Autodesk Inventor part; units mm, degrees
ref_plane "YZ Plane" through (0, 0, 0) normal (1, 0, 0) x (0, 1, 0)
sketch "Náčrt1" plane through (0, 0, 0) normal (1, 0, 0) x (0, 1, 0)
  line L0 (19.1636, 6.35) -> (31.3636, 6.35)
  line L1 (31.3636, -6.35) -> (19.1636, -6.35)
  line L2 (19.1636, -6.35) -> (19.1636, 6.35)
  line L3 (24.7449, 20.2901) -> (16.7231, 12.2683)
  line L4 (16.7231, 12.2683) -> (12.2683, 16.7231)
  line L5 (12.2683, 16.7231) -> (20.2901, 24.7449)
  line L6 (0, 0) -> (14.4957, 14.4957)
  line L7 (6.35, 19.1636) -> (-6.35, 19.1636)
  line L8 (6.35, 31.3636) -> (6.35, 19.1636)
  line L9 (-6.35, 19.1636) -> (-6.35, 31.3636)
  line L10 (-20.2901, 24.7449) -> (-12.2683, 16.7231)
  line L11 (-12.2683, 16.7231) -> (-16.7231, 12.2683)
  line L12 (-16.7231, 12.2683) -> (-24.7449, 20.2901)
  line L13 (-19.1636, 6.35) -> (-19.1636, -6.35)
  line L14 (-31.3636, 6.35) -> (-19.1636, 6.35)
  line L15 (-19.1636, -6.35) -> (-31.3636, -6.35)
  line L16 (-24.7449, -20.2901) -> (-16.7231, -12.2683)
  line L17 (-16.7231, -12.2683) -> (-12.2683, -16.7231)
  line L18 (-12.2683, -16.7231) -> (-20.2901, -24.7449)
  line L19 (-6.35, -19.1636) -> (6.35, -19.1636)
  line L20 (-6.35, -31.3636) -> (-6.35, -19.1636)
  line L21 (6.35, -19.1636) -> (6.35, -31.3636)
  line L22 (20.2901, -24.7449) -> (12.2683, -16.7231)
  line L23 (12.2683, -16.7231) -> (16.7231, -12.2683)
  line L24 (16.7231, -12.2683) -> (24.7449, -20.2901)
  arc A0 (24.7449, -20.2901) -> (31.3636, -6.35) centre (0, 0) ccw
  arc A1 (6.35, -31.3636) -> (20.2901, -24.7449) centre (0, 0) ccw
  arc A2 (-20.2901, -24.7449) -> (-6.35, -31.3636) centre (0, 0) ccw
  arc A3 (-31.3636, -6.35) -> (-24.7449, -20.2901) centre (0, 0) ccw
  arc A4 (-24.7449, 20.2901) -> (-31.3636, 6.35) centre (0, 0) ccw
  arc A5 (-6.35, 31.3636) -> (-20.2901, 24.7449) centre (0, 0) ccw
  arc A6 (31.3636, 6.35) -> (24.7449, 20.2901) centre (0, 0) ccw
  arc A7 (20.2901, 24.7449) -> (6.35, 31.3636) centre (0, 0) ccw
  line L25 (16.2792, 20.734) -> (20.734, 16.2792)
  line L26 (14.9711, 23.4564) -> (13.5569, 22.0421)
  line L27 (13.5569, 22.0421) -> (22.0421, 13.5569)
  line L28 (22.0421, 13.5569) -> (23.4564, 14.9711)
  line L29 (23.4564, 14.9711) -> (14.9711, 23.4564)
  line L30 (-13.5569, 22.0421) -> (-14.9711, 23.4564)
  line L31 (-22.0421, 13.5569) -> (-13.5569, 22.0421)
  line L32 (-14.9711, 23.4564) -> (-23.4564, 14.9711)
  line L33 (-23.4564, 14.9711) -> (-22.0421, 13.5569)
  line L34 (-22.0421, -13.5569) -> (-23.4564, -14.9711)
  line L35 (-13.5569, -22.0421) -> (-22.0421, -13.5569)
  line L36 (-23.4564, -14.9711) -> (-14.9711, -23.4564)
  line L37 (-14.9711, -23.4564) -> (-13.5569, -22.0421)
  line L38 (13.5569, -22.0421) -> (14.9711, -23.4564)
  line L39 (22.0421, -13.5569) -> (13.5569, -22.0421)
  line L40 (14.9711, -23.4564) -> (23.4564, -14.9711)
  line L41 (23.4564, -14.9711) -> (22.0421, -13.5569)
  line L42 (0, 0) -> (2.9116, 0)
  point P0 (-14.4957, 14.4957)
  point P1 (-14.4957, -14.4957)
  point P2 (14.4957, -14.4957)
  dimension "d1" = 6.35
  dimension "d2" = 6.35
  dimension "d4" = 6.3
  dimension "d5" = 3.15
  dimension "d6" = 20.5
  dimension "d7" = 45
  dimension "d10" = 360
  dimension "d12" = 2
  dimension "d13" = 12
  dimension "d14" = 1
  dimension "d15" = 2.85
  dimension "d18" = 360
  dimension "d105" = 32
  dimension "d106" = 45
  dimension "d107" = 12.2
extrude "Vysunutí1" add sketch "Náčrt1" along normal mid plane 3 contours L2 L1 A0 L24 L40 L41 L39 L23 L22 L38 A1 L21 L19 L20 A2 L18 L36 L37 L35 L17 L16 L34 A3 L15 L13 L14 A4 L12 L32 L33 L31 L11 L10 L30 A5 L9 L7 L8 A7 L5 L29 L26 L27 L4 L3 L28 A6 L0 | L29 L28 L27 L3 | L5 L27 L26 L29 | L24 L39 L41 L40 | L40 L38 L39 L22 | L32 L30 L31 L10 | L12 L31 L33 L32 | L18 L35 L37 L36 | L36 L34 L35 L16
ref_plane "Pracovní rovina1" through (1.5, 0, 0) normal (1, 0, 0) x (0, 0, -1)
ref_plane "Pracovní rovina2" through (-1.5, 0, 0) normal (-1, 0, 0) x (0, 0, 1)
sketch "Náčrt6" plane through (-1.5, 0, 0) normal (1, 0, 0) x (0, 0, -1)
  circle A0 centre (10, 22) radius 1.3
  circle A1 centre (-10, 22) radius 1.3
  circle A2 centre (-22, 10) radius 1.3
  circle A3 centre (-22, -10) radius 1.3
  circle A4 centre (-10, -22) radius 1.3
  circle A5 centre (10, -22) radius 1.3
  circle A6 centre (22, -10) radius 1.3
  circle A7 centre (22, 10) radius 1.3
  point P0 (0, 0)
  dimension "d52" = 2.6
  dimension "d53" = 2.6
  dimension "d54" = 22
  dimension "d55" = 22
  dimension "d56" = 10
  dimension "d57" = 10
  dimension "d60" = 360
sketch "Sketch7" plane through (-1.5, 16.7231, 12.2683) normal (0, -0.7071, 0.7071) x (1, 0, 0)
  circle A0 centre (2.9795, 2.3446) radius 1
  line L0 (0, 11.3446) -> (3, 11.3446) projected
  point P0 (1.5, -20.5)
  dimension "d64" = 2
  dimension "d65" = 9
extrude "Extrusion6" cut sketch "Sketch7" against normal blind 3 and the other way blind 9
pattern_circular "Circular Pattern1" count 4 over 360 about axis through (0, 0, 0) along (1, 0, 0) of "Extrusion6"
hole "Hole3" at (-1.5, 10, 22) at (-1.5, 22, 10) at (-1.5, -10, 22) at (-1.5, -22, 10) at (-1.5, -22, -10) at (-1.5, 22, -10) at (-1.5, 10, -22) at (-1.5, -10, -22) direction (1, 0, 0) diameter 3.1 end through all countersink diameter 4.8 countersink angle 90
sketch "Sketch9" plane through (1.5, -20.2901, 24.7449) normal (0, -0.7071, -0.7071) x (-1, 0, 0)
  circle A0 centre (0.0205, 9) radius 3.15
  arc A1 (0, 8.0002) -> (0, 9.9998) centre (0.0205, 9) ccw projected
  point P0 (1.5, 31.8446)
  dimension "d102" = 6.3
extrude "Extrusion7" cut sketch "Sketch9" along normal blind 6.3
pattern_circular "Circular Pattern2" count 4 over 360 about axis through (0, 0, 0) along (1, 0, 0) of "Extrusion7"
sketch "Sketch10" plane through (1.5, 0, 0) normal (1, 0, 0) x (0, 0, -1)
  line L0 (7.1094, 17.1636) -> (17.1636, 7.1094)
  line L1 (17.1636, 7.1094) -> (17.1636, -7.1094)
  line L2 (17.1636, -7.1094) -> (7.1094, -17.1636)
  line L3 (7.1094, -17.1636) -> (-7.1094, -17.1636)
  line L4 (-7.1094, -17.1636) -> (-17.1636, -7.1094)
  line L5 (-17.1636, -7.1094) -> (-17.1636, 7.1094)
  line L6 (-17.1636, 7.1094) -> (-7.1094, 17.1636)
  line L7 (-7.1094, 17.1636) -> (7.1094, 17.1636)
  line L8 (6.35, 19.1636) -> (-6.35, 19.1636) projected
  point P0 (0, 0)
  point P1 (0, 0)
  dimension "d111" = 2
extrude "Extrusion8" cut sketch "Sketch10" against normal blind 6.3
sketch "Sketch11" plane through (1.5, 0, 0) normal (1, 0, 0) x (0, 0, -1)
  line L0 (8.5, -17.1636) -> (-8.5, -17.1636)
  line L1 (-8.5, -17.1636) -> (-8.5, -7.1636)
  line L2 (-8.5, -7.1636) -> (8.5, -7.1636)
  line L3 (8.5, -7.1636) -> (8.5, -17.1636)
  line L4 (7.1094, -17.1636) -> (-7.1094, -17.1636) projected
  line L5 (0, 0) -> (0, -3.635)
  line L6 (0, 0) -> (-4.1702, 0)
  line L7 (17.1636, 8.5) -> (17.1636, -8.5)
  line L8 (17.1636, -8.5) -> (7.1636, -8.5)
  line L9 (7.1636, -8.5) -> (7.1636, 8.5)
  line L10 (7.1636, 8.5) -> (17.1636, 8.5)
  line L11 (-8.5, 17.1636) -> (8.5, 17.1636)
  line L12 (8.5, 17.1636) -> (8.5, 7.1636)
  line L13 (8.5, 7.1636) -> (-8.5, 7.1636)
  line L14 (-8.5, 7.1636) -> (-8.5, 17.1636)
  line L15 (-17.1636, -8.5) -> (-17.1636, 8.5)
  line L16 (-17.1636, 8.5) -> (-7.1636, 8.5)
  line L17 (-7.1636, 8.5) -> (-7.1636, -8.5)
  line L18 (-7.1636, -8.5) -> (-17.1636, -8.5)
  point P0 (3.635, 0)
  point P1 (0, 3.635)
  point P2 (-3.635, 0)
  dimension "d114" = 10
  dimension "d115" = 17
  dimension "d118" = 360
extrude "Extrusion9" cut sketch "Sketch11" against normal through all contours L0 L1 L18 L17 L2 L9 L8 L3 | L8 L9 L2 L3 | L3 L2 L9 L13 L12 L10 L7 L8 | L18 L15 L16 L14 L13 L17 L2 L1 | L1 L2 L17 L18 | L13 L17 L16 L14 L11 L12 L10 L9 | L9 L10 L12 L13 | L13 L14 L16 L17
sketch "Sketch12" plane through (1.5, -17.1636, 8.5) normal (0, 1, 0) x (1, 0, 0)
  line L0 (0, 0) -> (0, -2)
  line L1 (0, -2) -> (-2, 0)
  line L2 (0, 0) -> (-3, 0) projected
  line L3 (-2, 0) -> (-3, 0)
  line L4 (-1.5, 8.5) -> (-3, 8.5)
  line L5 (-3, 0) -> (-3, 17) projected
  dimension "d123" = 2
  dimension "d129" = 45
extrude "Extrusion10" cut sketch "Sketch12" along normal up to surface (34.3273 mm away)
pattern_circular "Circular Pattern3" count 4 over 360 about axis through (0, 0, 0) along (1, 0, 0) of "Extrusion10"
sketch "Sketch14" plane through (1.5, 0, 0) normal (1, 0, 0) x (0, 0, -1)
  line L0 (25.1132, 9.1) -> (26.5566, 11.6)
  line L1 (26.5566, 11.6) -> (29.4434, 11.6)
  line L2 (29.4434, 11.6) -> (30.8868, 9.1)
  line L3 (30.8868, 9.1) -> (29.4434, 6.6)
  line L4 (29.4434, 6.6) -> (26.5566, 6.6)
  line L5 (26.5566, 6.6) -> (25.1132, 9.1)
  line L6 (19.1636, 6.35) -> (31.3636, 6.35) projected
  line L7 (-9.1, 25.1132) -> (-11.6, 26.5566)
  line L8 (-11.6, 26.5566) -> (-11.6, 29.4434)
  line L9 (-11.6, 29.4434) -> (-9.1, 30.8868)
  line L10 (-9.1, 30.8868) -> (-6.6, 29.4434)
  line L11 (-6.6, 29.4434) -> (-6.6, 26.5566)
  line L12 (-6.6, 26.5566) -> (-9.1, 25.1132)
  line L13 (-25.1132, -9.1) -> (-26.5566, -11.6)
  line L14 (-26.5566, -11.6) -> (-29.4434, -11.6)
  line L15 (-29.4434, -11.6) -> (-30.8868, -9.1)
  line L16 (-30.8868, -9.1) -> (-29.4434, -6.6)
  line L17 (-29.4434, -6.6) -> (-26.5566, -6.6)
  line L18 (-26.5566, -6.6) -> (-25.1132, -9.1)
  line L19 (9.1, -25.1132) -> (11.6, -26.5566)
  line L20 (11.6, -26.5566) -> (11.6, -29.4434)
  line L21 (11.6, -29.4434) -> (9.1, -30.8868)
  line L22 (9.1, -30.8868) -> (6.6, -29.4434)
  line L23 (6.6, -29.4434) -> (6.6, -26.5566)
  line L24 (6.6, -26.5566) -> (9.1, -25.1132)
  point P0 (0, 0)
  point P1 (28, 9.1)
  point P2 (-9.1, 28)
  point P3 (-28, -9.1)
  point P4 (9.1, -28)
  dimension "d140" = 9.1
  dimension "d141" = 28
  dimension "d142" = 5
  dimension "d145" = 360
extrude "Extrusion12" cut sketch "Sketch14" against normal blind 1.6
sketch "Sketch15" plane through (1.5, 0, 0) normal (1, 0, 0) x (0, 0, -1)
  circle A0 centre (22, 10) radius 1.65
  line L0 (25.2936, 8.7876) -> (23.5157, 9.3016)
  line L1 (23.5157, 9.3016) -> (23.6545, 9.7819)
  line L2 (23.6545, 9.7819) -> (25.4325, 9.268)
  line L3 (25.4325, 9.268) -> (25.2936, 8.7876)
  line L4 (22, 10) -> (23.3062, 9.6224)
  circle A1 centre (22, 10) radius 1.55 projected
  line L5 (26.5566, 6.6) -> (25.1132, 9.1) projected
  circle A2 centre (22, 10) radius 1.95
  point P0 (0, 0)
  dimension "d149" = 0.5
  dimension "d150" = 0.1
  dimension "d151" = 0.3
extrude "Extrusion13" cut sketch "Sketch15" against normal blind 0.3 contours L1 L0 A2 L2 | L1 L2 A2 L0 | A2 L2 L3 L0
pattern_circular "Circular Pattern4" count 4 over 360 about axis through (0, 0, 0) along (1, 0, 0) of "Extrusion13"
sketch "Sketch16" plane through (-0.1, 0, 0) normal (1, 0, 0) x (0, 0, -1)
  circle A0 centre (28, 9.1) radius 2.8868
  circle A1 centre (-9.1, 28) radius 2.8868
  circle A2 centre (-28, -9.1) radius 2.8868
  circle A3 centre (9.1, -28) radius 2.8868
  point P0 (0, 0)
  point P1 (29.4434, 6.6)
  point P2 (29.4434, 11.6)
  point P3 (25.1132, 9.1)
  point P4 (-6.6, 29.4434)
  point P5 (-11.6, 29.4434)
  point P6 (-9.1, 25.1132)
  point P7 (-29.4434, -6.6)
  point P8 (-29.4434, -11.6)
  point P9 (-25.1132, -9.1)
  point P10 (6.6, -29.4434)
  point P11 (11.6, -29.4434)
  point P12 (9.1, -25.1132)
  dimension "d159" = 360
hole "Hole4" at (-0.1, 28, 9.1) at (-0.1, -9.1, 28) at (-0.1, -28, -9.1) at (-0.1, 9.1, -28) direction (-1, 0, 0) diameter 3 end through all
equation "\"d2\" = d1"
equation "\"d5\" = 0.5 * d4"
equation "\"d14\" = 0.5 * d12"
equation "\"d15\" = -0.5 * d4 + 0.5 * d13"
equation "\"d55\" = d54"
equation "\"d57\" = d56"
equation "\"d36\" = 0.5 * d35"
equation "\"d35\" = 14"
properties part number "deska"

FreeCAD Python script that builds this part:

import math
import FreeCAD as App
import Part
import Sketcher
Q = App.Units.Quantity

doc = App.newDocument("Part")
body = doc.addObject("PartDesign::Body", "Body")

# Sketch on YZ plane
sketch1 = body.newObject("Sketcher::SketchObject", "Sketch")
sketch1.AttachmentSupport = (doc.getObject("YZ_Plane"), [""])
sketch1.MapMode = "FlatFace"
sketch1.addGeometry(Part.LineSegment(App.Vector(19.1636, -6.35, 0), App.Vector(19.1636, 6.35, 0)), False)
sketch1.addGeometry(Part.LineSegment(App.Vector(19.1636, 6.35, 0), App.Vector(31.3636, 6.35, 0)), False)
sketch1.addGeometry(Part.ArcOfCircle(Part.Circle(App.Vector(0, 0, 0), App.Vector(0, 0, 1), 31.999972), math.radians(11.445615), math.radians(39.350759)), False)
sketch1.addGeometry(Part.LineSegment(App.Vector(24.7449, 20.2901, 0), App.Vector(16.7231, 12.2683, 0)), False)
sketch1.addGeometry(Part.LineSegment(App.Vector(16.7231, 12.2683, 0), App.Vector(12.2683, 16.7231, 0)), False)
sketch1.addGeometry(Part.LineSegment(App.Vector(12.2683, 16.7231, 0), App.Vector(20.2901, 24.7449, 0)), False)
sketch1.addGeometry(Part.ArcOfCircle(Part.Circle(App.Vector(0, 0, 0), App.Vector(0, 0, 1), 31.999967), math.radians(50.649241), math.radians(78.554385)), False)
sketch1.addGeometry(Part.LineSegment(App.Vector(6.35, 31.3636, 0), App.Vector(6.35, 19.1636, 0)), False)
sketch1.addGeometry(Part.LineSegment(App.Vector(6.35, 19.1636, 0), App.Vector(-6.35, 19.1636, 0)), False)
sketch1.addGeometry(Part.LineSegment(App.Vector(-6.35, 19.1636, 0), App.Vector(-6.35, 31.3636, 0)), False)
sketch1.addGeometry(Part.ArcOfCircle(Part.Circle(App.Vector(0, 0, 0), App.Vector(0, 0, 1), 31.999972), math.radians(101.445615), math.radians(129.350759)), False)
sketch1.addGeometry(Part.LineSegment(App.Vector(-20.2901, 24.7449, 0), App.Vector(-12.2683, 16.7231, 0)), False)
sketch1.addGeometry(Part.LineSegment(App.Vector(-12.2683, 16.7231, 0), App.Vector(-16.7231, 12.2683, 0)), False)
sketch1.addGeometry(Part.LineSegment(App.Vector(-16.7231, 12.2683, 0), App.Vector(-24.7449, 20.2901, 0)), False)
sketch1.addGeometry(Part.ArcOfCircle(Part.Circle(App.Vector(0, 0, 0), App.Vector(0, 0, 1), 31.999967), math.radians(140.649241), math.radians(168.554385)), False)
sketch1.addGeometry(Part.LineSegment(App.Vector(-31.3636, 6.35, 0), App.Vector(-19.1636, 6.35, 0)), False)
sketch1.addGeometry(Part.LineSegment(App.Vector(-19.1636, 6.35, 0), App.Vector(-19.1636, -6.35, 0)), False)
sketch1.addGeometry(Part.LineSegment(App.Vector(-19.1636, -6.35, 0), App.Vector(-31.3636, -6.35, 0)), False)
sketch1.addGeometry(Part.ArcOfCircle(Part.Circle(App.Vector(0, 0, 0), App.Vector(0, 0, 1), 31.999972), math.radians(-168.554385), math.radians(-140.649241)), False)
sketch1.addGeometry(Part.LineSegment(App.Vector(-24.7449, -20.2901, 0), App.Vector(-16.7231, -12.2683, 0)), False)
sketch1.addGeometry(Part.LineSegment(App.Vector(-16.7231, -12.2683, 0), App.Vector(-12.2683, -16.7231, 0)), False)
sketch1.addGeometry(Part.LineSegment(App.Vector(-12.2683, -16.7231, 0), App.Vector(-20.2901, -24.7449, 0)), False)
sketch1.addGeometry(Part.ArcOfCircle(Part.Circle(App.Vector(0, 0, 0), App.Vector(0, 0, 1), 31.999967), math.radians(-129.350759), math.radians(-101.445615)), False)
sketch1.addGeometry(Part.LineSegment(App.Vector(-6.35, -31.3636, 0), App.Vector(-6.35, -19.1636, 0)), False)
sketch1.addGeometry(Part.LineSegment(App.Vector(-6.35, -19.1636, 0), App.Vector(6.35, -19.1636, 0)), False)
sketch1.addGeometry(Part.LineSegment(App.Vector(6.35, -19.1636, 0), App.Vector(6.35, -31.3636, 0)), False)
sketch1.addGeometry(Part.ArcOfCircle(Part.Circle(App.Vector(0, 0, 0), App.Vector(0, 0, 1), 31.999972), math.radians(-78.554385), math.radians(-50.649241)), False)
sketch1.addGeometry(Part.LineSegment(App.Vector(20.2901, -24.7449, 0), App.Vector(12.2683, -16.7231, 0)), False)
sketch1.addGeometry(Part.LineSegment(App.Vector(12.2683, -16.7231, 0), App.Vector(16.7231, -12.2683, 0)), False)
sketch1.addGeometry(Part.LineSegment(App.Vector(16.7231, -12.2683, 0), App.Vector(24.7449, -20.2901, 0)), False)
sketch1.addGeometry(Part.ArcOfCircle(Part.Circle(App.Vector(0, 0, 0), App.Vector(0, 0, 1), 31.999967), math.radians(-39.350759), math.radians(-11.445615)), False)
sketch1.addGeometry(Part.LineSegment(App.Vector(31.3636, -6.35, 0), App.Vector(19.1636, -6.35, 0)), False)
sketch1.addConstraint(Sketcher.Constraint("Coincident", 0, 2, 1, 1))
sketch1.addConstraint(Sketcher.Constraint("Coincident", 1, 2, 2, 1))
sketch1.addConstraint(Sketcher.Constraint("Coincident", 2, 2, 3, 1))
sketch1.addConstraint(Sketcher.Constraint("Coincident", 3, 2, 4, 1))
sketch1.addConstraint(Sketcher.Constraint("Coincident", 4, 2, 5, 1))
sketch1.addConstraint(Sketcher.Constraint("Coincident", 5, 2, 6, 1))
sketch1.addConstraint(Sketcher.Constraint("Coincident", 6, 2, 7, 1))
sketch1.addConstraint(Sketcher.Constraint("Coincident", 7, 2, 8, 1))
sketch1.addConstraint(Sketcher.Constraint("Coincident", 8, 2, 9, 1))
sketch1.addConstraint(Sketcher.Constraint("Coincident", 9, 2, 10, 1))
sketch1.addConstraint(Sketcher.Constraint("Coincident", 10, 2, 11, 1))
sketch1.addConstraint(Sketcher.Constraint("Coincident", 11, 2, 12, 1))
sketch1.addConstraint(Sketcher.Constraint("Coincident", 12, 2, 13, 1))
sketch1.addConstraint(Sketcher.Constraint("Coincident", 13, 2, 14, 1))
sketch1.addConstraint(Sketcher.Constraint("Coincident", 14, 2, 15, 1))
sketch1.addConstraint(Sketcher.Constraint("Coincident", 15, 2, 16, 1))
sketch1.addConstraint(Sketcher.Constraint("Coincident", 16, 2, 17, 1))
sketch1.addConstraint(Sketcher.Constraint("Coincident", 17, 2, 18, 1))
sketch1.addConstraint(Sketcher.Constraint("Coincident", 18, 2, 19, 1))
sketch1.addConstraint(Sketcher.Constraint("Coincident", 19, 2, 20, 1))
sketch1.addConstraint(Sketcher.Constraint("Coincident", 20, 2, 21, 1))
sketch1.addConstraint(Sketcher.Constraint("Coincident", 21, 2, 22, 1))
sketch1.addConstraint(Sketcher.Constraint("Coincident", 22, 2, 23, 1))
sketch1.addConstraint(Sketcher.Constraint("Coincident", 23, 2, 24, 1))
sketch1.addConstraint(Sketcher.Constraint("Coincident", 24, 2, 25, 1))
sketch1.addConstraint(Sketcher.Constraint("Coincident", 25, 2, 26, 1))
sketch1.addConstraint(Sketcher.Constraint("Coincident", 26, 2, 27, 1))
sketch1.addConstraint(Sketcher.Constraint("Coincident", 27, 2, 28, 1))
sketch1.addConstraint(Sketcher.Constraint("Coincident", 28, 2, 29, 1))
sketch1.addConstraint(Sketcher.Constraint("Coincident", 29, 2, 30, 1))
sketch1.addConstraint(Sketcher.Constraint("Coincident", 30, 2, 31, 1))
sketch1.addConstraint(Sketcher.Constraint("Coincident", 31, 2, 0, 1))
sketch1.addConstraint(Sketcher.Constraint("Vertical", 0))
sketch1.addConstraint(Sketcher.Constraint("Horizontal", 1))
sketch1.addConstraint(Sketcher.Constraint("Vertical", 7))
sketch1.addConstraint(Sketcher.Constraint("Horizontal", 8))
sketch1.addConstraint(Sketcher.Constraint("Vertical", 9))
sketch1.addConstraint(Sketcher.Constraint("Horizontal", 15))
sketch1.addConstraint(Sketcher.Constraint("Vertical", 16))
sketch1.addConstraint(Sketcher.Constraint("Horizontal", 17))
sketch1.addConstraint(Sketcher.Constraint("Vertical", 23))
sketch1.addConstraint(Sketcher.Constraint("Horizontal", 24))
sketch1.addConstraint(Sketcher.Constraint("Vertical", 25))
sketch1.addConstraint(Sketcher.Constraint("Horizontal", 31))
sketch1.addConstraint(Sketcher.Constraint("Coincident", 2, 3, -1, 1))
sketch1.addConstraint(Sketcher.Constraint("Coincident", 6, 3, -1, 1))
sketch1.addConstraint(Sketcher.Constraint("Coincident", 10, 3, -1, 1))
sketch1.addConstraint(Sketcher.Constraint("Coincident", 14, 3, -1, 1))
sketch1.addConstraint(Sketcher.Constraint("Coincident", 18, 3, -1, 1))
sketch1.addConstraint(Sketcher.Constraint("Coincident", 22, 3, -1, 1))
sketch1.addConstraint(Sketcher.Constraint("Coincident", 26, 3, -1, 1))
sketch1.addConstraint(Sketcher.Constraint("Coincident", 30, 3, -1, 1))
sketch1.addConstraint(Sketcher.Constraint("Equal", 2, 6))
sketch1.addConstraint(Sketcher.Constraint("Equal", 6, 10))
sketch1.addConstraint(Sketcher.Constraint("Equal", 10, 14))
sketch1.addConstraint(Sketcher.Constraint("Equal", 14, 18))
sketch1.addConstraint(Sketcher.Constraint("Equal", 18, 22))
sketch1.addConstraint(Sketcher.Constraint("Equal", 22, 26))
sketch1.addConstraint(Sketcher.Constraint("Equal", 26, 30))
sketch1.addConstraint(Sketcher.Constraint("Symmetric", 0, 2, 16, 2, -1, 1))
sketch1.addConstraint(Sketcher.Constraint("Symmetric", 3, 2, 19, 2, -1, 1))
sketch1.addConstraint(Sketcher.Constraint("Symmetric", 4, 2, 20, 2, -1, 1))
sketch1.addConstraint(Sketcher.Constraint("Symmetric", 7, 2, 23, 2, -1, 1))
sketch1.addConstraint(Sketcher.Constraint("Symmetric", 11, 2, 27, 2, -1, 1))
sketch1.addConstraint(Sketcher.Constraint("Symmetric", 12, 2, 28, 2, -1, 1))
sketch1.addConstraint(Sketcher.Constraint("Symmetric", 4, 2, 11, 2, -2))
sketch1.addConstraint(Sketcher.Constraint("Symmetric", 3, 2, 12, 2, -2))
sketch1.addConstraint(Sketcher.Constraint("Perpendicular", 3, 4))
sketch1.addConstraint(Sketcher.Constraint("Perpendicular", 4, 5))
sketch1.addConstraint(Sketcher.Constraint("Perpendicular", 5, 11))
sketch1.addConstraint(Sketcher.Constraint("Perpendicular", 11, 12))
sketch1.addConstraint(Sketcher.Constraint("Perpendicular", 12, 13))
sketch1.addConstraint(Sketcher.Constraint("Perpendicular", 13, 19))
sketch1.addConstraint(Sketcher.Constraint("Perpendicular", 20, 21))
sketch1.addConstraint(Sketcher.Constraint("Perpendicular", 21, 27))
sketch1.addConstraint(Sketcher.Constraint("Perpendicular", 28, 29))
sketch1.addConstraint(Sketcher.Constraint("Horizontal", 6, 2, 9, 2))
sketch1.addConstraint(Sketcher.Constraint("Horizontal", 1, 2, 14, 2))
sketch1.addConstraint(Sketcher.Constraint("Horizontal", 22, 2, 25, 2))
sketch1.addConstraint(Sketcher.Constraint("Horizontal", 17, 2, 30, 2))
sketch1.addConstraint(Sketcher.Constraint("Equal", 24, 0))
sketch1.addConstraint(Sketcher.Constraint("Equal", 31, 7))
sketch1.addConstraint(Sketcher.Constraint("Equal", 3, 5))
sketch1.addConstraint(Sketcher.Constraint("Radius", 2, 32.0))
sketch1.addConstraint(Sketcher.Constraint("DistanceX", 1, 1, 1, 2, 12.2))
sketch1.addConstraint(Sketcher.Constraint("Distance", 4, 6.3))
sketch1.addConstraint(Sketcher.Constraint("DistanceY", -1, 1, 0, 2, 6.35))
sketch1.addConstraint(Sketcher.Constraint("DistanceX", -1, 1, 3, 2, 16.723))
pad1 = body.newObject("PartDesign::Pad", "Pad")
pad1.Profile = sketch1
pad1.Length = 3
pad1.Midplane = True

# Sketch on an angled plane
sketch2 = body.newObject("Sketcher::SketchObject", "Sketch001")
sketch2.Placement = App.Placement(App.Vector(-1.5, 16.7231, 12.2683), App.Rotation(App.Vector(1, 0, 0), App.Vector(0, 0.707106781, 0.707106781), App.Vector(0, -0.707106781, 0.707106781), "ZXY"))
sketch2.addGeometry(Part.Circle(App.Vector(2.9795, 2.3446, 0), App.Vector(0, 0, 1), 1), False)
sketch2.addConstraint(Sketcher.Constraint("Diameter", 0, 2.0))
sketch2.addConstraint(Sketcher.Constraint("DistanceX", -1, 1, 0, 3, 2.9795))
sketch2.addConstraint(Sketcher.Constraint("DistanceY", -1, 1, 0, 3, 2.3446))
pocket1 = body.newObject("PartDesign::Pocket", "Pocket")
pocket1.Profile = sketch2
pocket1.Type = "TwoLengths"
pocket1.Length = 3
pocket1.Length2 = 9
doc.recompute()

polarpattern = body.newObject("PartDesign::PolarPattern", "PolarPattern")
polarpattern.Originals = [pocket1]
polarpattern.Axis = (doc.getObject("X_Axis"), [""])
polarpattern.Angle = 360
polarpattern.Occurrences = 4
body.Tip = polarpattern

# Sketch on YZ plane
sketch3 = body.newObject("Sketcher::SketchObject", "Sketch002")
sketch3.AttachmentSupport = (doc.getObject("YZ_Plane"), [""])
sketch3.MapMode = "FlatFace"
sketch3.AttachmentOffset = App.Placement(App.Vector(0, 0, -1.5), App.Rotation())
sketch3.addGeometry(Part.Circle(App.Vector(10, 22, 0), App.Vector(0, 0, 1), 1.55), False)
sketch3.addGeometry(Part.Circle(App.Vector(22, 10, 0), App.Vector(0, 0, 1), 1.55), False)
sketch3.addGeometry(Part.Circle(App.Vector(-10, 22, 0), App.Vector(0, 0, 1), 1.55), False)
sketch3.addGeometry(Part.Circle(App.Vector(-22, 10, 0), App.Vector(0, 0, 1), 1.55), False)
sketch3.addGeometry(Part.Circle(App.Vector(-22, -10, 0), App.Vector(0, 0, 1), 1.55), False)
sketch3.addGeometry(Part.Circle(App.Vector(22, -10, 0), App.Vector(0, 0, 1), 1.55), False)
sketch3.addGeometry(Part.Circle(App.Vector(10, -22, 0), App.Vector(0, 0, 1), 1.55), False)
sketch3.addGeometry(Part.Circle(App.Vector(-10, -22, 0), App.Vector(0, 0, 1), 1.55), False)
sketch3.addConstraint(Sketcher.Constraint("Equal", 0, 1))
sketch3.addConstraint(Sketcher.Constraint("Equal", 1, 2))
sketch3.addConstraint(Sketcher.Constraint("Equal", 2, 3))
sketch3.addConstraint(Sketcher.Constraint("Equal", 3, 4))
sketch3.addConstraint(Sketcher.Constraint("Equal", 4, 5))
sketch3.addConstraint(Sketcher.Constraint("Equal", 5, 6))
sketch3.addConstraint(Sketcher.Constraint("Equal", 6, 7))
sketch3.addConstraint(Sketcher.Constraint("Symmetric", 1, 3, 4, 3, -1, 1))
sketch3.addConstraint(Sketcher.Constraint("Symmetric", 3, 3, 5, 3, -1, 1))
sketch3.addConstraint(Sketcher.Constraint("Symmetric", 2, 3, 6, 3, -1, 1))
sketch3.addConstraint(Sketcher.Constraint("Symmetric", 0, 3, 7, 3, -1, 1))
sketch3.addConstraint(Sketcher.Constraint("Symmetric", 0, 3, 2, 3, -2))
sketch3.addConstraint(Sketcher.Constraint("Symmetric", 1, 3, 3, 3, -2))
sketch3.addConstraint(Sketcher.Constraint("Diameter", 0, 3.1))
sketch3.addConstraint(Sketcher.Constraint("DistanceX", -1, 1, 0, 3, 10.0))
sketch3.addConstraint(Sketcher.Constraint("DistanceY", -1, 1, 0, 3, 22.0))
sketch3.addConstraint(Sketcher.Constraint("DistanceX", -1, 1, 1, 3, 22.0))
sketch3.addConstraint(Sketcher.Constraint("DistanceY", -1, 1, 1, 3, 10.0))
doc.recompute()
hole = body.newObject("PartDesign::Hole", "Hole")
hole.Profile = sketch3
hole.ThreadType = "None"
hole.Diameter = 3.1
hole.DepthType = "ThroughAll"
hole.HoleCutType = "Countersink"
hole.HoleCutDiameter = 4.8
hole.HoleCutCountersinkAngle = 90
hole.Reversed = True

# Sketch on an angled plane
sketch4 = body.newObject("Sketcher::SketchObject", "Sketch003")
sketch4.Placement = App.Placement(App.Vector(1.5, -20.2901, 24.7449), App.Rotation(App.Vector(-1, 0, 0), App.Vector(0, 0.707106781, -0.707106781), App.Vector(0, -0.707106781, -0.707106781), "ZXY"))
sketch4.addGeometry(Part.Circle(App.Vector(0.0205, 9, 0), App.Vector(0, 0, 1), 3.15), False)
sketch4.addConstraint(Sketcher.Constraint("Diameter", 0, 6.3))
sketch4.addConstraint(Sketcher.Constraint("DistanceY", -1, 1, 0, 3, 9.0))
sketch4.addConstraint(Sketcher.Constraint("DistanceX", -1, 1, 0, 3, 0.0205))
pocket2 = body.newObject("PartDesign::Pocket", "Pocket001")
pocket2.Profile = sketch4
pocket2.Length = 6.3
pocket2.Reversed = True
doc.recompute()

polarpattern2 = body.newObject("PartDesign::PolarPattern", "PolarPattern001")
polarpattern2.Originals = [pocket2]
polarpattern2.Axis = (doc.getObject("X_Axis"), [""])
polarpattern2.Angle = 360
polarpattern2.Occurrences = 4
body.Tip = polarpattern2

# Sketch on YZ plane
sketch5 = body.newObject("Sketcher::SketchObject", "Sketch004")
sketch5.AttachmentSupport = (doc.getObject("YZ_Plane"), [""])
sketch5.MapMode = "FlatFace"
sketch5.AttachmentOffset = App.Placement(App.Vector(0, 0, 1.5), App.Rotation())
sketch5.addGeometry(Part.LineSegment(App.Vector(7.1094, -17.1636, 0), App.Vector(17.1636, -7.1094, 0)), False)
sketch5.addGeometry(Part.LineSegment(App.Vector(17.1636, -7.1094, 0), App.Vector(17.1636, 7.1094, 0)), False)
sketch5.addGeometry(Part.LineSegment(App.Vector(17.1636, 7.1094, 0), App.Vector(7.1094, 17.1636, 0)), False)
sketch5.addGeometry(Part.LineSegment(App.Vector(7.1094, 17.1636, 0), App.Vector(-7.1094, 17.1636, 0)), False)
sketch5.addGeometry(Part.LineSegment(App.Vector(-7.1094, 17.1636, 0), App.Vector(-17.1636, 7.1094, 0)), False)
sketch5.addGeometry(Part.LineSegment(App.Vector(-17.1636, 7.1094, 0), App.Vector(-17.1636, -7.1094, 0)), False)
sketch5.addGeometry(Part.LineSegment(App.Vector(-17.1636, -7.1094, 0), App.Vector(-7.1094, -17.1636, 0)), False)
sketch5.addGeometry(Part.LineSegment(App.Vector(-7.1094, -17.1636, 0), App.Vector(7.1094, -17.1636, 0)), False)
sketch5.addConstraint(Sketcher.Constraint("Coincident", 0, 2, 1, 1))
sketch5.addConstraint(Sketcher.Constraint("Coincident", 1, 2, 2, 1))
sketch5.addConstraint(Sketcher.Constraint("Coincident", 2, 2, 3, 1))
sketch5.addConstraint(Sketcher.Constraint("Coincident", 3, 2, 4, 1))
sketch5.addConstraint(Sketcher.Constraint("Coincident", 4, 2, 5, 1))
sketch5.addConstraint(Sketcher.Constraint("Coincident", 5, 2, 6, 1))
sketch5.addConstraint(Sketcher.Constraint("Coincident", 6, 2, 7, 1))
sketch5.addConstraint(Sketcher.Constraint("Coincident", 7, 2, 0, 1))
sketch5.addConstraint(Sketcher.Constraint("Vertical", 1))
sketch5.addConstraint(Sketcher.Constraint("Horizontal", 3))
sketch5.addConstraint(Sketcher.Constraint("Vertical", 5))
sketch5.addConstraint(Sketcher.Constraint("Horizontal", 7))
sketch5.addConstraint(Sketcher.Constraint("Symmetric", 0, 2, 4, 2, -1, 1))
sketch5.addConstraint(Sketcher.Constraint("Symmetric", 2, 2, 6, 2, -1, 1))
sketch5.addConstraint(Sketcher.Constraint("Perpendicular", 0, 2))
sketch5.addConstraint(Sketcher.Constraint("Perpendicular", 2, 4))
sketch5.addConstraint(Sketcher.Constraint("Perpendicular", 4, 6))
sketch5.addConstraint(Sketcher.Constraint("Horizontal", 1, 2, 4, 2))
sketch5.addConstraint(Sketcher.Constraint("Vertical", 3, 2, 6, 2))
sketch5.addConstraint(Sketcher.Constraint("Equal", 7, 1))
sketch5.addConstraint(Sketcher.Constraint("DistanceX", 3, 2, 3, 1, 14.2188))
sketch5.addConstraint(Sketcher.Constraint("DistanceY", 0, 2, 2, 2, 24.273))
pocket3 = body.newObject("PartDesign::Pocket", "Pocket002")
pocket3.Profile = sketch5
pocket3.Length = 6.3

# Sketch on YZ plane
sketch6 = body.newObject("Sketcher::SketchObject", "Sketch005")
sketch6.AttachmentSupport = (doc.getObject("YZ_Plane"), [""])
sketch6.MapMode = "FlatFace"
sketch6.AttachmentOffset = App.Placement(App.Vector(0, 0, 1.5), App.Rotation())
sketch6.addGeometry(Part.LineSegment(App.Vector(-17.1636, -8.5, 0), App.Vector(-8.5, -8.5, 0)), False)
sketch6.addGeometry(Part.LineSegment(App.Vector(-8.5, -8.5, 0), App.Vector(-8.5, -17.1636, 0)), False)
sketch6.addGeometry(Part.LineSegment(App.Vector(-8.5, -17.1636, 0), App.Vector(8.5, -17.1636, 0)), False)
sketch6.addGeometry(Part.LineSegment(App.Vector(8.5, -17.1636, 0), App.Vector(8.5, -8.5, 0)), False)
sketch6.addGeometry(Part.LineSegment(App.Vector(8.5, -8.5, 0), App.Vector(17.1636, -8.5, 0)), False)
sketch6.addGeometry(Part.LineSegment(App.Vector(17.1636, -8.5, 0), App.Vector(17.1636, 8.5, 0)), False)
sketch6.addGeometry(Part.LineSegment(App.Vector(17.1636, 8.5, 0), App.Vector(8.5, 8.5, 0)), False)
sketch6.addGeometry(Part.LineSegment(App.Vector(8.5, 8.5, 0), App.Vector(8.5, 17.1636, 0)), False)
sketch6.addGeometry(Part.LineSegment(App.Vector(8.5, 17.1636, 0), App.Vector(-8.5, 17.1636, 0)), False)
sketch6.addGeometry(Part.LineSegment(App.Vector(-8.5, 17.1636, 0), App.Vector(-8.5, 8.5, 0)), False)
sketch6.addGeometry(Part.LineSegment(App.Vector(-8.5, 8.5, 0), App.Vector(-17.1636, 8.5, 0)), False)
sketch6.addGeometry(Part.LineSegment(App.Vector(-17.1636, 8.5, 0), App.Vector(-17.1636, -8.5, 0)), False)
sketch6.addGeometry(Part.LineSegment(App.Vector(-7.1636, -7.1636, 0), App.Vector(-7.1636, 7.1636, 0)), False)
sketch6.addGeometry(Part.LineSegment(App.Vector(-7.1636, 7.1636, 0), App.Vector(7.1636, 7.1636, 0)), False)
sketch6.addGeometry(Part.LineSegment(App.Vector(7.1636, 7.1636, 0), App.Vector(7.1636, -7.1636, 0)), False)
sketch6.addGeometry(Part.LineSegment(App.Vector(7.1636, -7.1636, 0), App.Vector(-7.1636, -7.1636, 0)), False)
sketch6.addConstraint(Sketcher.Constraint("Coincident", 0, 2, 1, 1))
sketch6.addConstraint(Sketcher.Constraint("Coincident", 1, 2, 2, 1))
sketch6.addConstraint(Sketcher.Constraint("Coincident", 2, 2, 3, 1))
sketch6.addConstraint(Sketcher.Constraint("Coincident", 3, 2, 4, 1))
sketch6.addConstraint(Sketcher.Constraint("Coincident", 4, 2, 5, 1))
sketch6.addConstraint(Sketcher.Constraint("Coincident", 5, 2, 6, 1))
sketch6.addConstraint(Sketcher.Constraint("Coincident", 6, 2, 7, 1))
sketch6.addConstraint(Sketcher.Constraint("Coincident", 7, 2, 8, 1))
sketch6.addConstraint(Sketcher.Constraint("Coincident", 8, 2, 9, 1))
sketch6.addConstraint(Sketcher.Constraint("Coincident", 9, 2, 10, 1))
sketch6.addConstraint(Sketcher.Constraint("Coincident", 10, 2, 11, 1))
sketch6.addConstraint(Sketcher.Constraint("Coincident", 11, 2, 0, 1))
sketch6.addConstraint(Sketcher.Constraint("Coincident", 12, 2, 13, 1))
sketch6.addConstraint(Sketcher.Constraint("Coincident", 13, 2, 14, 1))
sketch6.addConstraint(Sketcher.Constraint("Coincident", 14, 2, 15, 1))
sketch6.addConstraint(Sketcher.Constraint("Coincident", 15, 2, 12, 1))
sketch6.addConstraint(Sketcher.Constraint("Horizontal", 0))
sketch6.addConstraint(Sketcher.Constraint("Vertical", 1))
sketch6.addConstraint(Sketcher.Constraint("Horizontal", 2))
sketch6.addConstraint(Sketcher.Constraint("Vertical", 3))
sketch6.addConstraint(Sketcher.Constraint("Horizontal", 4))
sketch6.addConstraint(Sketcher.Constraint("Vertical", 5))
sketch6.addConstraint(Sketcher.Constraint("Horizontal", 6))
sketch6.addConstraint(Sketcher.Constraint("Vertical", 7))
sketch6.addConstraint(Sketcher.Constraint("Horizontal", 8))
sketch6.addConstraint(Sketcher.Constraint("Vertical", 9))
sketch6.addConstraint(Sketcher.Constraint("Horizontal", 10))
sketch6.addConstraint(Sketcher.Constraint("Vertical", 11))
sketch6.addConstraint(Sketcher.Constraint("Vertical", 12))
sketch6.addConstraint(Sketcher.Constraint("Horizontal", 13))
sketch6.addConstraint(Sketcher.Constraint("Vertical", 14))
sketch6.addConstraint(Sketcher.Constraint("Horizontal", 15))
sketch6.addConstraint(Sketcher.Constraint("Symmetric", 0, 2, 6, 2, -1, 1))
sketch6.addConstraint(Sketcher.Constraint("Symmetric", 2, 2, 8, 2, -1, 1))
sketch6.addConstraint(Sketcher.Constraint("Symmetric", 4, 2, 10, 2, -1, 1))
sketch6.addConstraint(Sketcher.Constraint("Symmetric", 12, 2, 14, 2, -1, 1))
sketch6.addConstraint(Sketcher.Constraint("Symmetric", 0, 2, 3, 2, -2))
sketch6.addConstraint(Sketcher.Constraint("Equal", 10, 1))
sketch6.addConstraint(Sketcher.Constraint("Equal", 8, 5))
sketch6.addConstraint(Sketcher.Constraint("Equal", 15, 12))
sketch6.addConstraint(Sketcher.Constraint("DistanceX", 2, 1, 2, 2, 17.0))
sketch6.addConstraint(Sketcher.Constraint("DistanceY", 12, 2, 8, 2, 10.0))
sketch6.addConstraint(Sketcher.Constraint("DistanceX", 0, 1, 0, 2, 8.6636))
pocket4 = body.newObject("PartDesign::Pocket", "Pocket003")
pocket4.Profile = sketch6
pocket4.Type = "ThroughAll"

# Sketch on XZ plane
sketch7 = body.newObject("Sketcher::SketchObject", "Sketch006")
sketch7.AttachmentSupport = (doc.getObject("XZ_Plane"), [""])
sketch7.MapMode = "FlatFace"
sketch7.AttachmentOffset = App.Placement(App.Vector(0, 0, 17.1636), App.Rotation())
sketch7.addGeometry(Part.LineSegment(App.Vector(1.5, 10.5, 0), App.Vector(1.5, 8.5, 0)), False)
sketch7.addGeometry(Part.LineSegment(App.Vector(1.5, 8.5, 0), App.Vector(-0.5, 8.5, 0)), False)
sketch7.addGeometry(Part.LineSegment(App.Vector(-0.5, 8.5, 0), App.Vector(1.5, 10.5, 0)), False)
sketch7.addConstraint(Sketcher.Constraint("Coincident", 0, 2, 1, 1))
sketch7.addConstraint(Sketcher.Constraint("Coincident", 1, 2, 2, 1))
sketch7.addConstraint(Sketcher.Constraint("Coincident", 2, 2, 0, 1))
sketch7.addConstraint(Sketcher.Constraint("Vertical", 0))
sketch7.addConstraint(Sketcher.Constraint("Horizontal", 1))
sketch7.addConstraint(Sketcher.Constraint("Equal", 1, 0))
sketch7.addConstraint(Sketcher.Constraint("DistanceX", 1, 2, 1, 1, 2.0))
sketch7.addConstraint(Sketcher.Constraint("DistanceX", -1, 1, 0, 2, 1.5))
sketch7.addConstraint(Sketcher.Constraint("DistanceY", -1, 1, 0, 2, 8.5))
pocket5 = body.newObject("PartDesign::Pocket", "Pocket004")
pocket5.Profile = sketch7
pocket5.Length = 34.3273
doc.recompute()

polarpattern3 = body.newObject("PartDesign::PolarPattern", "PolarPattern002")
polarpattern3.Originals = [pocket5]
polarpattern3.Axis = (doc.getObject("X_Axis"), [""])
polarpattern3.Angle = 360
polarpattern3.Occurrences = 4
body.Tip = polarpattern3

# Sketch on YZ plane
sketch8 = body.newObject("Sketcher::SketchObject", "Sketch007")
sketch8.AttachmentSupport = (doc.getObject("YZ_Plane"), [""])
sketch8.MapMode = "FlatFace"
sketch8.AttachmentOffset = App.Placement(App.Vector(0, 0, 1.5), App.Rotation())
sketch8.addGeometry(Part.LineSegment(App.Vector(11.6, -26.5566, 0), App.Vector(9.1, -25.1132, 0)), False)
sketch8.addGeometry(Part.LineSegment(App.Vector(9.1, -25.1132, 0), App.Vector(6.6, -26.5566, 0)), False)
sketch8.addGeometry(Part.LineSegment(App.Vector(6.6, -26.5566, 0), App.Vector(6.6, -29.4434, 0)), False)
sketch8.addGeometry(Part.LineSegment(App.Vector(6.6, -29.4434, 0), App.Vector(9.1, -30.8868, 0)), False)
sketch8.addGeometry(Part.LineSegment(App.Vector(9.1, -30.8868, 0), App.Vector(11.6, -29.4434, 0)), False)
sketch8.addGeometry(Part.LineSegment(App.Vector(11.6, -29.4434, 0), App.Vector(11.6, -26.5566, 0)), False)
sketch8.addGeometry(Part.LineSegment(App.Vector(26.5566, 11.6, 0), App.Vector(25.1132, 9.1, 0)), False)
sketch8.addGeometry(Part.LineSegment(App.Vector(25.1132, 9.1, 0), App.Vector(26.5566, 6.6, 0)), False)
sketch8.addGeometry(Part.LineSegment(App.Vector(26.5566, 6.6, 0), App.Vector(29.4434, 6.6, 0)), False)
sketch8.addGeometry(Part.LineSegment(App.Vector(29.4434, 6.6, 0), App.Vector(30.8868, 9.1, 0)), False)
sketch8.addGeometry(Part.LineSegment(App.Vector(30.8868, 9.1, 0), App.Vector(29.4434, 11.6, 0)), False)
sketch8.addGeometry(Part.LineSegment(App.Vector(29.4434, 11.6, 0), App.Vector(26.5566, 11.6, 0)), False)
sketch8.addGeometry(Part.LineSegment(App.Vector(-11.6, 26.5566, 0), App.Vector(-9.1, 25.1132, 0)), False)
sketch8.addGeometry(Part.LineSegment(App.Vector(-9.1, 25.1132, 0), App.Vector(-6.6, 26.5566, 0)), False)
sketch8.addGeometry(Part.LineSegment(App.Vector(-6.6, 26.5566, 0), App.Vector(-6.6, 29.4434, 0)), False)
sketch8.addGeometry(Part.LineSegment(App.Vector(-6.6, 29.4434, 0), App.Vector(-9.1, 30.8868, 0)), False)
sketch8.addGeometry(Part.LineSegment(App.Vector(-9.1, 30.8868, 0), App.Vector(-11.6, 29.4434, 0)), False)
sketch8.addGeometry(Part.LineSegment(App.Vector(-11.6, 29.4434, 0), App.Vector(-11.6, 26.5566, 0)), False)
sketch8.addGeometry(Part.LineSegment(App.Vector(-26.5566, -11.6, 0), App.Vector(-25.1132, -9.1, 0)), False)
sketch8.addGeometry(Part.LineSegment(App.Vector(-25.1132, -9.1, 0), App.Vector(-26.5566, -6.6, 0)), False)
sketch8.addGeometry(Part.LineSegment(App.Vector(-26.5566, -6.6, 0), App.Vector(-29.4434, -6.6, 0)), False)
sketch8.addGeometry(Part.LineSegment(App.Vector(-29.4434, -6.6, 0), App.Vector(-30.8868, -9.1, 0)), False)
sketch8.addGeometry(Part.LineSegment(App.Vector(-30.8868, -9.1, 0), App.Vector(-29.4434, -11.6, 0)), False)
sketch8.addGeometry(Part.LineSegment(App.Vector(-29.4434, -11.6, 0), App.Vector(-26.5566, -11.6, 0)), False)
sketch8.addConstraint(Sketcher.Constraint("Coincident", 0, 2, 1, 1))
sketch8.addConstraint(Sketcher.Constraint("Coincident", 1, 2, 2, 1))
sketch8.addConstraint(Sketcher.Constraint("Coincident", 2, 2, 3, 1))
sketch8.addConstraint(Sketcher.Constraint("Coincident", 3, 2, 4, 1))
sketch8.addConstraint(Sketcher.Constraint("Coincident", 4, 2, 5, 1))
sketch8.addConstraint(Sketcher.Constraint("Coincident", 5, 2, 0, 1))
sketch8.addConstraint(Sketcher.Constraint("Coincident", 6, 2, 7, 1))
sketch8.addConstraint(Sketcher.Constraint("Coincident", 7, 2, 8, 1))
sketch8.addConstraint(Sketcher.Constraint("Coincident", 8, 2, 9, 1))
sketch8.addConstraint(Sketcher.Constraint("Coincident", 9, 2, 10, 1))
sketch8.addConstraint(Sketcher.Constraint("Coincident", 10, 2, 11, 1))
sketch8.addConstraint(Sketcher.Constraint("Coincident", 11, 2, 6, 1))
sketch8.addConstraint(Sketcher.Constraint("Coincident", 12, 2, 13, 1))
sketch8.addConstraint(Sketcher.Constraint("Coincident", 13, 2, 14, 1))
sketch8.addConstraint(Sketcher.Constraint("Coincident", 14, 2, 15, 1))
sketch8.addConstraint(Sketcher.Constraint("Coincident", 15, 2, 16, 1))
sketch8.addConstraint(Sketcher.Constraint("Coincident", 16, 2, 17, 1))
sketch8.addConstraint(Sketcher.Constraint("Coincident", 17, 2, 12, 1))
sketch8.addConstraint(Sketcher.Constraint("Coincident", 18, 2, 19, 1))
sketch8.addConstraint(Sketcher.Constraint("Coincident", 19, 2, 20, 1))
sketch8.addConstraint(Sketcher.Constraint("Coincident", 20, 2, 21, 1))
sketch8.addConstraint(Sketcher.Constraint("Coincident", 21, 2, 22, 1))
sketch8.addConstraint(Sketcher.Constraint("Coincident", 22, 2, 23, 1))
sketch8.addConstraint(Sketcher.Constraint("Coincident", 23, 2, 18, 1))
sketch8.addConstraint(Sketcher.Constraint("Vertical", 2))
sketch8.addConstraint(Sketcher.Constraint("Vertical", 5))
sketch8.addConstraint(Sketcher.Constraint("Horizontal", 8))
sketch8.addConstraint(Sketcher.Constraint("Horizontal", 11))
sketch8.addConstraint(Sketcher.Constraint("Vertical", 14))
sketch8.addConstraint(Sketcher.Constraint("Vertical", 17))
sketch8.addConstraint(Sketcher.Constraint("Horizontal", 20))
sketch8.addConstraint(Sketcher.Constraint("Horizontal", 23))
sketch8.addConstraint(Sketcher.Constraint("Symmetric", 0, 2, 12, 2, -1, 1))
sketch8.addConstraint(Sketcher.Constraint("Symmetric", 1, 2, 13, 2, -1, 1))
sketch8.addConstraint(Sketcher.Constraint("Symmetric", 3, 2, 15, 2, -1, 1))
sketch8.addConstraint(Sketcher.Constraint("Symmetric", 4, 2, 16, 2, -1, 1))
sketch8.addConstraint(Sketcher.Constraint("Symmetric", 6, 2, 18, 2, -1, 1))
sketch8.addConstraint(Sketcher.Constraint("Symmetric", 7, 2, 19, 2, -1, 1))
sketch8.addConstraint(Sketcher.Constraint("Symmetric", 9, 2, 21, 2, -1, 1))
sketch8.addConstraint(Sketcher.Constraint("Symmetric", 10, 2, 22, 2, -1, 1))
sketch8.addConstraint(Sketcher.Constraint("Parallel", 0, 3))
sketch8.addConstraint(Sketcher.Constraint("Parallel", 1, 4))
sketch8.addConstraint(Sketcher.Constraint("Perpendicular", 3, 6))
sketch8.addConstraint(Sketcher.Constraint("Perpendicular", 4, 7))
sketch8.addConstraint(Sketcher.Constraint("Parallel", 6, 9))
sketch8.addConstraint(Sketcher.Constraint("Parallel", 7, 10))
sketch8.addConstraint(Sketcher.Constraint("Perpendicular", 9, 12))
sketch8.addConstraint(Sketcher.Constraint("Parallel", 12, 15))
sketch8.addConstraint(Sketcher.Constraint("Perpendicular", 15, 18))
sketch8.addConstraint(Sketcher.Constraint("Parallel", 18, 21))
sketch8.addConstraint(Sketcher.Constraint("Horizontal", 2, 2, 4, 2))
sketch8.addConstraint(Sketcher.Constraint("Horizontal", 1, 2, 5, 2))
sketch8.addConstraint(Sketcher.Constraint("Horizontal", 6, 2, 9, 2))
sketch8.addConstraint(Sketcher.Constraint("Vertical", 0, 2, 3, 2))
sketch8.addConstraint(Sketcher.Constraint("Vertical", 8, 2, 10, 2))
sketch8.addConstraint(Sketcher.Constraint("Equal", 23, 2))
sketch8.addConstraint(Sketcher.Constraint("Equal", 4, 6))
sketch8.addConstraint(Sketcher.Constraint("DistanceX", 2, 2, 4, 2, 5.0))
sketch8.addConstraint(Sketcher.Constraint("DistanceX", -1, 1, 0, 2, 9.1))
sketch8.addConstraint(Sketcher.Constraint("DistanceY", -1, 1, 6, 2, 9.1))
sketch8.addConstraint(Sketcher.Constraint("Angle", 0, Q("149.9996 deg")))
sketch8.addConstraint(Sketcher.Constraint("DistanceX", 8, 1, 8, 2, 2.8868))
sketch8.addConstraint(Sketcher.Constraint("DistanceY", 0, 2, -1, 1, 25.1132))
sketch8.addConstraint(Sketcher.Constraint("DistanceX", -1, 1, 6, 2, 25.1132))
pocket6 = body.newObject("PartDesign::Pocket", "Pocket005")
pocket6.Profile = sketch8
pocket6.Length = 1.6

# Sketch on YZ plane
sketch9 = body.newObject("Sketcher::SketchObject", "Sketch008")
sketch9.AttachmentSupport = (doc.getObject("YZ_Plane"), [""])
sketch9.MapMode = "FlatFace"
sketch9.AttachmentOffset = App.Placement(App.Vector(0, 0, 1.5), App.Rotation())
sketch9.addGeometry(Part.LineSegment(App.Vector(9.222759, -23.788406, 0), App.Vector(8.7876, -25.2936, 0)), False)
sketch9.addGeometry(Part.LineSegment(App.Vector(8.7876, -25.2936, 0), App.Vector(9.268, -25.4325, 0)), False)
sketch9.addGeometry(Part.LineSegment(App.Vector(9.268, -25.4325, 0), App.Vector(9.703064, -23.927259, 0)), False)
sketch9.addGeometry(Part.ArcOfCircle(Part.Circle(App.Vector(10, -22, 0), App.Vector(0, 0, 1), 1.95), math.radians(-98.758793), math.radians(246.51025)), False)
sketch9.addGeometry(Part.Circle(App.Vector(10, -22, 0), App.Vector(0, 0, 1), 1.65), False)
sketch9.addConstraint(Sketcher.Constraint("Coincident", 0, 2, 1, 1))
sketch9.addConstraint(Sketcher.Constraint("Coincident", 1, 2, 2, 1))
sketch9.addConstraint(Sketcher.Constraint("Coincident", 2, 2, 3, 1))
sketch9.addConstraint(Sketcher.Constraint("Coincident", 3, 2, 0, 1))
sketch9.addConstraint(Sketcher.Constraint("Coincident", 4, 3, 3, 3))
sketch9.addConstraint(Sketcher.Constraint("Perpendicular", 0, 1))
sketch9.addConstraint(Sketcher.Constraint("Perpendicular", 1, 2))
sketch9.addConstraint(Sketcher.Constraint("Equal", 0, 2))
sketch9.addConstraint(Sketcher.Constraint("Distance", 1, 0.5))
sketch9.addConstraint(Sketcher.Constraint("Diameter", 4, 3.3))
sketch9.addConstraint(Sketcher.Constraint("Radius", 3, 1.95))
sketch9.addConstraint(Sketcher.Constraint("DistanceX", -1, 1, 3, 3, 10.0))
sketch9.addConstraint(Sketcher.Constraint("DistanceY", 3, 3, -1, 1, 22.0))
sketch9.addConstraint(Sketcher.Constraint("Angle", 2, Q("73.879 deg")))
sketch9.addConstraint(Sketcher.Constraint("DistanceX", -1, 1, 1, 2, 9.268))
pocket7 = body.newObject("PartDesign::Pocket", "Pocket006")
pocket7.Profile = sketch9
pocket7.Length = 0.3
doc.recompute()

polarpattern4 = body.newObject("PartDesign::PolarPattern", "PolarPattern003")
polarpattern4.Originals = [pocket7]
polarpattern4.Axis = (doc.getObject("X_Axis"), [""])
polarpattern4.Angle = 360
polarpattern4.Occurrences = 4
body.Tip = polarpattern4

# Sketch on YZ plane
sketch10 = body.newObject("Sketcher::SketchObject", "Sketch009")
sketch10.AttachmentSupport = (doc.getObject("YZ_Plane"), [""])
sketch10.MapMode = "FlatFace"
sketch10.AttachmentOffset = App.Placement(App.Vector(0, 0, -0.1), App.Rotation())
sketch10.addGeometry(Part.Circle(App.Vector(28, 9.1, 0), App.Vector(0, 0, 1), 1.5), False)
sketch10.addGeometry(Part.Circle(App.Vector(-9.1, 28, 0), App.Vector(0, 0, 1), 1.5), False)
sketch10.addGeometry(Part.Circle(App.Vector(-28, -9.1, 0), App.Vector(0, 0, 1), 1.5), False)
sketch10.addGeometry(Part.Circle(App.Vector(9.1, -28, 0), App.Vector(0, 0, 1), 1.5), False)
sketch10.addConstraint(Sketcher.Constraint("Equal", 0, 1))
sketch10.addConstraint(Sketcher.Constraint("Equal", 1, 2))
sketch10.addConstraint(Sketcher.Constraint("Equal", 2, 3))
sketch10.addConstraint(Sketcher.Constraint("Symmetric", 0, 3, 2, 3, -1, 1))
sketch10.addConstraint(Sketcher.Constraint("Symmetric", 1, 3, 3, 3, -1, 1))
sketch10.addConstraint(Sketcher.Constraint("Diameter", 0, 3.0))
sketch10.addConstraint(Sketcher.Constraint("DistanceX", -1, 1, 0, 3, 28.0))
sketch10.addConstraint(Sketcher.Constraint("DistanceY", -1, 1, 1, 3, 28.0))
sketch10.addConstraint(Sketcher.Constraint("DistanceY", -1, 1, 0, 3, 9.1))
sketch10.addConstraint(Sketcher.Constraint("DistanceX", 1, 3, -1, 1, 9.1))
doc.recompute()
hole2 = body.newObject("PartDesign::Hole", "Hole001")
hole2.Profile = sketch10
hole2.ThreadType = "None"
hole2.Diameter = 3
hole2.DepthType = "ThroughAll"

doc.recompute()
